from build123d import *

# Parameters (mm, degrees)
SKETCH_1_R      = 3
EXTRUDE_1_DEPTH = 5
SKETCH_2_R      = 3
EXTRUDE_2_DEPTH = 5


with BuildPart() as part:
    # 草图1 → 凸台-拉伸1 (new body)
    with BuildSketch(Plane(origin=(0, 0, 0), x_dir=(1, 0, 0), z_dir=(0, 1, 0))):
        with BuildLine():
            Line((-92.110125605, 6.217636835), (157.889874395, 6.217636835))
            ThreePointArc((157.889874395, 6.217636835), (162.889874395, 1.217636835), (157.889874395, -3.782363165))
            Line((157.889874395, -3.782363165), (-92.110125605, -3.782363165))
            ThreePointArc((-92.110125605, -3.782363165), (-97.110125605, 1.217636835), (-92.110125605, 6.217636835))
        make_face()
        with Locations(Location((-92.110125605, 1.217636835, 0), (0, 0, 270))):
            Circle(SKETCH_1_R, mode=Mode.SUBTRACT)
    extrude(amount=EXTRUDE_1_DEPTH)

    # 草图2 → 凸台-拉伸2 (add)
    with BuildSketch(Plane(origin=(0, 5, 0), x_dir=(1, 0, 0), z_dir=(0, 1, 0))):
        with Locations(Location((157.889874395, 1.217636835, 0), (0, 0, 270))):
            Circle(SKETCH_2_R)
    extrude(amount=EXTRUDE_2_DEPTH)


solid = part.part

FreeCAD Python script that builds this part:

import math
import FreeCAD as App
import Part
import Sketcher

V = App.Vector

doc = App.newDocument("Part")
params = doc.addObject("Spreadsheet::Sheet", "Params")
for row, (alias, value) in enumerate([
    ("sketch1_diameter", "6 mm"),
    ("sketch1_radius", "5 mm"),
    ("sketch1_width", "250 mm"),
    ("pad1_length", "5 mm"),
    ("sketch2_diameter", "6 mm"),
    ("pad2_length", "5 mm"),
], start=1):
    params.set(f"A{row}", alias)
    params.set(f"B{row}", "=" + value)
    params.setAlias(f"B{row}", alias)

body = doc.addObject("PartDesign::Body", "Body")

# Sketch on XZ plane
sketch1 = body.newObject("Sketcher::SketchObject", "Sketch")
sketch1.AttachmentSupport = (doc.getObject("XZ_Plane"), [""])
sketch1.MapMode = "FlatFace"
sketch1.addGeometry([
    Part.LineSegment(V(157.9, -6.2, 0), V(-92.1, -6.2, 0)),  # 0
    Part.ArcOfCircle(Part.Circle(V(-92.1, -1.2, 0), V(0, 0, 1), 5), math.radians(90), math.radians(270)),  # 1
    Part.LineSegment(V(-92.1, 3.8, 0), V(157.9, 3.8, 0)),  # 2
    Part.ArcOfCircle(Part.Circle(V(157.9, -1.2, 0), V(0, 0, 1), 5), math.radians(-90), math.radians(90)),  # 3
    Part.Circle(V(-92.1, -1.2, 0), V(0, 0, 1), 3),  # 4
], False)
sketch1.addConstraint([
    Sketcher.Constraint("Tangent", 0, 2, 1, 2),
    Sketcher.Constraint("Tangent", 1, 1, 2, 1),
    Sketcher.Constraint("Tangent", 2, 2, 3, 2),
    Sketcher.Constraint("Tangent", 3, 1, 0, 1),
    Sketcher.Constraint("Horizontal", 0),
    Sketcher.Constraint("Horizontal", 2),
    Sketcher.Constraint("Coincident", 4, 3, 1, 3),
    Sketcher.Constraint("Diameter", 4, 6.0),
    Sketcher.Constraint("Radius", 1, 5.0),
    Sketcher.Constraint("DistanceX", 0, 2, 0, 1, 250.0),
    Sketcher.Constraint("DistanceX", 1, 3, -1, 1, 92.110126),
    Sketcher.Constraint("DistanceY", 1, 3, -1, 1, 1.217637),
])
sketch1.setExpression("Constraints[7]", "Params.sketch1_diameter")
sketch1.setExpression("Constraints[8]", "Params.sketch1_radius")
sketch1.setExpression("Constraints[9]", "Params.sketch1_width")
pad1 = body.newObject("PartDesign::Pad", "Pad")
pad1.Profile = sketch1
pad1.setExpression("Length", "Params.pad1_length")
pad1.Reversed = True

# Sketch on XZ plane
sketch2 = body.newObject("Sketcher::SketchObject", "Sketch001")
sketch2.AttachmentSupport = (doc.getObject("XZ_Plane"), [""])
sketch2.MapMode = "FlatFace"
sketch2.AttachmentOffset = App.Placement(V(0, 0, -5), App.Rotation())
sketch2.addGeometry(Part.Circle(V(157.9, -1.2, 0), V(0, 0, 1), 3), False)
sketch2.addConstraint([
    Sketcher.Constraint("Diameter", 0, 6.0),
    Sketcher.Constraint("DistanceX", -1, 1, 0, 3, 157.889874),
    Sketcher.Constraint("DistanceY", 0, 3, -1, 1, 1.217637),
])
sketch2.setExpression("Constraints[0]", "Params.sketch2_diameter")
pad2 = body.newObject("PartDesign::Pad", "Pad001")
pad2.Profile = sketch2
pad2.setExpression("Length", "Params.pad2_length")
pad2.Reversed = True

doc.recompute()
